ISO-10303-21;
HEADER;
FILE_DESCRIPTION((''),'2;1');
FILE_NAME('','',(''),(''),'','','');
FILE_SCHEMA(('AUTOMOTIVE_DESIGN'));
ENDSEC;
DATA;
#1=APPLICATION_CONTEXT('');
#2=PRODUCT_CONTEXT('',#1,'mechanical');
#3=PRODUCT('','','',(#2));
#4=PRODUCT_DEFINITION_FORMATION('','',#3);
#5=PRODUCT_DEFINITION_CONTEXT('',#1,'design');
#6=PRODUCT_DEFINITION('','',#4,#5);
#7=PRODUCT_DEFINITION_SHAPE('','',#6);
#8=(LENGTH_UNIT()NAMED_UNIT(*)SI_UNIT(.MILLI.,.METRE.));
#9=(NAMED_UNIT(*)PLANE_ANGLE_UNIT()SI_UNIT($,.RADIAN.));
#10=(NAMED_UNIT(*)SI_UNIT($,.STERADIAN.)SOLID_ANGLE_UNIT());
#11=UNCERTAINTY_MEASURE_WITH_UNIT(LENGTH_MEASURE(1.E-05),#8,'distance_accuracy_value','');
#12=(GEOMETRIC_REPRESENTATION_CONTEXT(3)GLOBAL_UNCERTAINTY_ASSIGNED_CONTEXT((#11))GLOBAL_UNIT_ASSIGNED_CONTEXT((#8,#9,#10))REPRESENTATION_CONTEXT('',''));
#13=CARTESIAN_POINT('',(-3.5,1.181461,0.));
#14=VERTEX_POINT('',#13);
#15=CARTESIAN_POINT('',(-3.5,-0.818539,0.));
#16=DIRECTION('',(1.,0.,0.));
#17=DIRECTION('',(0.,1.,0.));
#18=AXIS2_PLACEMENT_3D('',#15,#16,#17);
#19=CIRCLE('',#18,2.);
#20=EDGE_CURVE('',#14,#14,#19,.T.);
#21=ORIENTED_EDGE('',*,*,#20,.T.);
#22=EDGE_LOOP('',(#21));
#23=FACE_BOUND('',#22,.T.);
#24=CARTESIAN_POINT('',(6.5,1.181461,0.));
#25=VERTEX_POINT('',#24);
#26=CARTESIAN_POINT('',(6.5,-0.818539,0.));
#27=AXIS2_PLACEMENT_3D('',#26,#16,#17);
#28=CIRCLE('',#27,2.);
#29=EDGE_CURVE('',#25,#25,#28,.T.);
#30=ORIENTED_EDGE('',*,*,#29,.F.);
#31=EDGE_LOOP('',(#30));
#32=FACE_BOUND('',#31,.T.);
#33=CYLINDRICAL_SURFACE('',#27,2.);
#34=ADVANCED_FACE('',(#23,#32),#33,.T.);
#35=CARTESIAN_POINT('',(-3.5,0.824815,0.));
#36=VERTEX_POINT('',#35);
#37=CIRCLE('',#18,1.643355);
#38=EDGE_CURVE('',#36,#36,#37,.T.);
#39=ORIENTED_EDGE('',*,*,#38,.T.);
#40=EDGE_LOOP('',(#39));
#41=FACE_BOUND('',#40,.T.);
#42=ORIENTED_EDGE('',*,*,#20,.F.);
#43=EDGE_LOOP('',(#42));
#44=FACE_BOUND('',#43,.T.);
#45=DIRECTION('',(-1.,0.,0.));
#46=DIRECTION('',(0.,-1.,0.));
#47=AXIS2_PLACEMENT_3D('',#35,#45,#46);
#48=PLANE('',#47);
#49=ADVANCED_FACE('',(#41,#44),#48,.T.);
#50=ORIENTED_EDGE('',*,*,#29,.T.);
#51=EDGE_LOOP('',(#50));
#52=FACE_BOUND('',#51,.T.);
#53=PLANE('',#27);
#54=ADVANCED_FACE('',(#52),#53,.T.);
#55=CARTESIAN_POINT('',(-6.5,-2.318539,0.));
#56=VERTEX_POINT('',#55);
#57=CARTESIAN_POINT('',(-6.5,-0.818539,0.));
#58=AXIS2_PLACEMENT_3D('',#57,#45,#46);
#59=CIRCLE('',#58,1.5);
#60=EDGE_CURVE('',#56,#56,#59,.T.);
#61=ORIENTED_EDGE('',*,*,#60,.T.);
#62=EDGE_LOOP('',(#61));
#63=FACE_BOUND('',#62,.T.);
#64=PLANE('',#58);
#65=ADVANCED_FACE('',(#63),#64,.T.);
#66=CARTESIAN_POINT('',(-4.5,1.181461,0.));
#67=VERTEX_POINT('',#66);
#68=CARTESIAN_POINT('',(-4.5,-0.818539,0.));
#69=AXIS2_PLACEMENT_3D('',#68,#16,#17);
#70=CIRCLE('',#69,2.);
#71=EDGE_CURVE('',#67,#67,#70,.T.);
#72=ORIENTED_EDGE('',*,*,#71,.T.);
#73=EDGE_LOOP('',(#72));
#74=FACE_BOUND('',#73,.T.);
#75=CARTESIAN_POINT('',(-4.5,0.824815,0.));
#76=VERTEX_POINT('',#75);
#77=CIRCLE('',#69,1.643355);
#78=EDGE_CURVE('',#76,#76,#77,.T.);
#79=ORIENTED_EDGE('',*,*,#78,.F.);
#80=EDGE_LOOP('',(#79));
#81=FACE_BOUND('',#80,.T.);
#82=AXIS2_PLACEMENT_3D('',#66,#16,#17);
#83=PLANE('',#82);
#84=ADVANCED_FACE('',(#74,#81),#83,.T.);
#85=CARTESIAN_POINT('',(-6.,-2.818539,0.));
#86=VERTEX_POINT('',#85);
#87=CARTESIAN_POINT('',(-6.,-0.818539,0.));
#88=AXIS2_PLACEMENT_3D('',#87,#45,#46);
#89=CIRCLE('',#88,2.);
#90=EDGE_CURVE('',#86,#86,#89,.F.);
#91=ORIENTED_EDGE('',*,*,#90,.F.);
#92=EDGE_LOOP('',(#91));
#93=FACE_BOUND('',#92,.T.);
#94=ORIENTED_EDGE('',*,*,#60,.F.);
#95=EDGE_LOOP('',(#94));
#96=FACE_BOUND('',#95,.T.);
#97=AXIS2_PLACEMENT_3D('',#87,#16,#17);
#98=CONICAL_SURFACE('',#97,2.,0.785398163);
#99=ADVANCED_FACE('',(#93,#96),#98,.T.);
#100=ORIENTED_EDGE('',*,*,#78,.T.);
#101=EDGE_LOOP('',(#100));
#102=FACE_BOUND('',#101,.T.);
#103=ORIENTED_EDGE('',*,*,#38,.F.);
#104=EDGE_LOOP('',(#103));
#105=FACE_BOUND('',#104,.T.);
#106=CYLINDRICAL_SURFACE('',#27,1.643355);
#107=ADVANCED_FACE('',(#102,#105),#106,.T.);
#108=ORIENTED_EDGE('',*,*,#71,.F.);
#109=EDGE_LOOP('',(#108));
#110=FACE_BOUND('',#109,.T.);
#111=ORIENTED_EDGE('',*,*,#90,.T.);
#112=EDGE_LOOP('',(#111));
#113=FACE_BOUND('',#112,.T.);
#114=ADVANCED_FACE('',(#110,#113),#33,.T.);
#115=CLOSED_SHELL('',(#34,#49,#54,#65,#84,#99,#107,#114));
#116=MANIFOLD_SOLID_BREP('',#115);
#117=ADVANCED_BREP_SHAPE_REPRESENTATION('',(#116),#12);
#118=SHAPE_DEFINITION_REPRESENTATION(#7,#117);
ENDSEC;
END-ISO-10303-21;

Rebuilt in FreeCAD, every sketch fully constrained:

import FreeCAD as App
import Part
import Sketcher

V = App.Vector


def edges_at(feature, points):
    """Names of the edges that pass closest to the given points."""
    edges = feature.Shape.Edges
    near = lambda p: min(range(len(edges)), key=lambda i: edges[i].distToShape(Part.Vertex(*p))[0])
    return sorted({f"Edge{near(p) + 1}" for p in points})


def add_polygon(sketch, points):
    """Adds a closed chain of lines whose ends are joined by coincident constraints."""
    first, n = sketch.GeometryCount, len(points)
    for a, b in zip(points, points[1:] + points[:1]):
        sketch.addGeometry(Part.LineSegment(App.Vector(*a, 0), App.Vector(*b, 0)), False)
    for i in range(n):
        sketch.addConstraint(Sketcher.Constraint("Coincident", first + i, 2, first + (i + 1) % n, 1))

doc = App.newDocument("Part")
params = doc.addObject("Spreadsheet::Sheet", "Params")
for row, (alias, value) in enumerate([
    ("sketch1_width", "2 mm"),
    ("sketch1_width2", "13 mm"),
    ("sketch1_width3", "10 mm"),
    ("revolution_angle", "360 deg"),
    ("chamfer_size", "0.5 mm"),
], start=1):
    params.set(f"A{row}", alias)
    params.set(f"B{row}", "=" + value)
    params.setAlias(f"B{row}", alias)

body = doc.addObject("PartDesign::Body", "Body")

# Sketch on XY plane
sketch1 = body.newObject("Sketcher::SketchObject", "Sketch")
sketch1.AttachmentSupport = (doc.getObject("XY_Plane"), [""])
sketch1.MapMode = "FlatFace"
add_polygon(sketch1, [(-4.5, 0.82), (-4.5, 1.18), (-6.5, 1.18), (-6.5, -0.82), (6.5, -0.82), (6.5, 1.18), (-3.5, 1.18), (-3.5, 0.82)])  # lines 0-7
sketch1.addGeometry(Part.LineSegment(V(6.5, -0.82, 0), V(-6.5, -0.82, 0)), True)  # axis
sketch1.addConstraint(Sketcher.Constraint("Vertical", 0))
sketch1.addConstraint(Sketcher.Constraint("Horizontal", 1))
sketch1.addConstraint(Sketcher.Constraint("Vertical", 2))
sketch1.addConstraint(Sketcher.Constraint("Horizontal", 3))
sketch1.addConstraint(Sketcher.Constraint("Vertical", 4))
sketch1.addConstraint(Sketcher.Constraint("Horizontal", 5))
sketch1.addConstraint(Sketcher.Constraint("Vertical", 6))
sketch1.addConstraint(Sketcher.Constraint("Horizontal", 7))
sketch1.addConstraint(Sketcher.Constraint("Horizontal", 8))
sketch1.addConstraint(Sketcher.Constraint("Coincident", 8, 1, 3, 2))
sketch1.addConstraint(Sketcher.Constraint("Symmetric", 1, 2, 4, 2, -2))
sketch1.addConstraint(Sketcher.Constraint("Vertical", 1, 2, 8, 2))
sketch1.addConstraint(Sketcher.Constraint("Equal", 1, 2))
sketch1.addConstraint(Sketcher.Constraint("DistanceX", 1, 2, 1, 1, 2.0))
sketch1.addConstraint(Sketcher.Constraint("DistanceX", 3, 1, 3, 2, 13.0))
sketch1.addConstraint(Sketcher.Constraint("DistanceX", 5, 2, 5, 1, 10.0))
sketch1.addConstraint(Sketcher.Constraint("DistanceY", 0, 1, 0, 2, 0.356645))
sketch1.addConstraint(Sketcher.Constraint("DistanceY", -1, 1, 0, 2, 1.181461))
sketch1.setExpression("Constraints[21]", "Params.sketch1_width")
sketch1.setExpression("Constraints[22]", "Params.sketch1_width2")
sketch1.setExpression("Constraints[23]", "Params.sketch1_width3")
revolution = body.newObject("PartDesign::Revolution", "Revolution")
revolution.Profile = sketch1
revolution.ReferenceAxis = (sketch1, ["Axis0"])
revolution.setExpression("Angle", "Params.revolution_angle")
doc.recompute()

chamfer = body.newObject("PartDesign::Chamfer", "Chamfer")
chamfer.Base = (revolution, edges_at(revolution, [(-6.5, -2.819, 0)]))
chamfer.setExpression("Size", "Params.chamfer_size")

doc.recompute()
